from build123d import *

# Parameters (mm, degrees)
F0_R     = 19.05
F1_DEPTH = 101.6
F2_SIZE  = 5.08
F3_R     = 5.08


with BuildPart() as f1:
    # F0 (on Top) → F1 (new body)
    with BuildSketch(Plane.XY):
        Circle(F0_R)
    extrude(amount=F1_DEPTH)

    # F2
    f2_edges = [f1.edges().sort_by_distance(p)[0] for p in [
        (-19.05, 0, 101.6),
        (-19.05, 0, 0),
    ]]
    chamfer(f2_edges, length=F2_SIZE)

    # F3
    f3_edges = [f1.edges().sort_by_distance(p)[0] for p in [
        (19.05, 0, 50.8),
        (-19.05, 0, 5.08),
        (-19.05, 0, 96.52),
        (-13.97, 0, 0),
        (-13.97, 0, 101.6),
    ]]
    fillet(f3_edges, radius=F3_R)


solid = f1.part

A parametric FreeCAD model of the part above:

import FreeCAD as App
import Part
import Sketcher
Q = App.Units.Quantity


def edges_at(feature, points):
    """Names of the edges that pass closest to the given points."""
    edges = feature.Shape.Edges
    near = lambda p: min(range(len(edges)), key=lambda i: edges[i].distToShape(Part.Vertex(*p))[0])
    return sorted({f"Edge{near(p) + 1}" for p in points})

doc = App.newDocument("Part")
body = doc.addObject("PartDesign::Body", "Body")

# Sketch on XY plane
sketch1 = body.newObject("Sketcher::SketchObject", "Sketch")
sketch1.AttachmentSupport = (doc.getObject("XY_Plane"), [""])
sketch1.MapMode = "FlatFace"
sketch1.addGeometry(Part.Circle(App.Vector(0, 0, 0), App.Vector(0, 0, 1), 19), False)
sketch1.addConstraint(Sketcher.Constraint("Coincident", 0, 3, -1, 1))
sketch1.addConstraint(Sketcher.Constraint("Diameter", 0, Q("1.5 in")))
pad1 = body.newObject("PartDesign::Pad", "Pad")
pad1.Profile = sketch1
pad1.Length = Q("4 in")
doc.recompute()

chamfer = body.newObject("PartDesign::Chamfer", "Chamfer")
chamfer.Base = (pad1, edges_at(pad1, [(-19.05, 0, 101.6), (-19.05, 0, 0)]))
chamfer.Size = Q("0.2 in")
doc.recompute()

fillet = body.newObject("PartDesign::Fillet", "Fillet")
fillet.Base = (chamfer, ["Edge1"])
fillet.UseAllEdges = True
fillet.Radius = Q("0.2 in")

doc.recompute()
